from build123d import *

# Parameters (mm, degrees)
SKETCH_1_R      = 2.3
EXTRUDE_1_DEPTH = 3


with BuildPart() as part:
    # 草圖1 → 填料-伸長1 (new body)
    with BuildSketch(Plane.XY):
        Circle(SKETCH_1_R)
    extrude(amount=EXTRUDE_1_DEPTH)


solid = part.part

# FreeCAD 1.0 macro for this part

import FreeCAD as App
import Part
import Sketcher
Q = App.Units.Quantity

doc = App.newDocument("Part")
body = doc.addObject("PartDesign::Body", "Body")

# Sketch on XY plane
sketch1 = body.newObject("Sketcher::SketchObject", "Sketch")
sketch1.AttachmentSupport = (doc.getObject("XY_Plane"), [""])
sketch1.MapMode = "FlatFace"
sketch1.addGeometry(Part.Circle(App.Vector(0, 0, 0), App.Vector(0, 0, 1), 2.3), False)
sketch1.addConstraint(Sketcher.Constraint("Coincident", 0, 3, -1, 1))
sketch1.addConstraint(Sketcher.Constraint("Diameter", 0, Q("4.6 mm")))
pad1 = body.newObject("PartDesign::Pad", "Pad")
pad1.Profile = sketch1
pad1.Length = 3

doc.recompute()
